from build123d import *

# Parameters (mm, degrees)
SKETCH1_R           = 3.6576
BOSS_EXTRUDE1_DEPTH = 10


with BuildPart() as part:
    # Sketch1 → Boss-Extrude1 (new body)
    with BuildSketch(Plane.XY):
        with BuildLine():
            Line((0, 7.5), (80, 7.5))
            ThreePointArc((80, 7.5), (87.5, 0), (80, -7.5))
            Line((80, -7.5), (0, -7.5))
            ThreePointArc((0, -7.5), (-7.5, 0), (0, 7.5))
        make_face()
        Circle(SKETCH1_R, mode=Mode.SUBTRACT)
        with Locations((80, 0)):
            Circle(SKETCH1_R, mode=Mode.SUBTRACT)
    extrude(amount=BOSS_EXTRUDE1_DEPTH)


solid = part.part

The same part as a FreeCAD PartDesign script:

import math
import FreeCAD as App
import Part
import Sketcher
from FreeCAD import Vector

doc = App.newDocument("Part")
body = doc.addObject("PartDesign::Body", "Body")

sketch1 = body.newObject("Sketcher::SketchObject", "Sketch")
sketch1.AttachmentSupport = (doc.getObject("XY_Plane"), [""])
sketch1.MapMode = "FlatFace"
sketch1.addGeometry(Part.LineSegment(Vector(80, 7.5, 0), Vector(0, 7.5, 0)), False)
sketch1.addGeometry(Part.ArcOfCircle(Part.Circle(Vector(0, 0, 0), Vector(0, 0, 1), 7.5), math.radians(90), math.radians(270)), False)
sketch1.addGeometry(Part.LineSegment(Vector(0, -7.5, 0), Vector(80, -7.5, 0)), False)
sketch1.addGeometry(Part.ArcOfCircle(Part.Circle(Vector(80, 0, 0), Vector(0, 0, 1), 7.5), math.radians(-90), math.radians(90)), False)
sketch1.addGeometry(Part.Circle(Vector(80, 0, 0), Vector(0, 0, 1), 3.7), False)
sketch1.addGeometry(Part.Circle(Vector(0, 0, 0), Vector(0, 0, 1), 3.7), False)
sketch1.addConstraint(Sketcher.Constraint("Tangent", 0, 2, 1, 1))
sketch1.addConstraint(Sketcher.Constraint("Tangent", 1, 2, 2, 1))
sketch1.addConstraint(Sketcher.Constraint("Tangent", 2, 2, 3, 1))
sketch1.addConstraint(Sketcher.Constraint("Tangent", 3, 2, 0, 1))
sketch1.addConstraint(Sketcher.Constraint("Horizontal", 0))
sketch1.addConstraint(Sketcher.Constraint("Horizontal", 2))
sketch1.addConstraint(Sketcher.Constraint("Coincident", 1, 3, -1, 1))
sketch1.addConstraint(Sketcher.Constraint("Coincident", 5, 3, -1, 1))
sketch1.addConstraint(Sketcher.Constraint("Coincident", 4, 3, 3, 3))
sketch1.addConstraint(Sketcher.Constraint("Equal", 4, 5))
sketch1.addConstraint(Sketcher.Constraint("Radius", 1, 7.5))
sketch1.addConstraint(Sketcher.Constraint("DistanceX", 0, 2, 0, 1, 80.0))
sketch1.addConstraint(Sketcher.Constraint("Diameter", 4, 7.3152))
pad1 = body.newObject("PartDesign::Pad", "Pad")
pad1.Profile = sketch1
pad1.Length = 10

doc.recompute()
